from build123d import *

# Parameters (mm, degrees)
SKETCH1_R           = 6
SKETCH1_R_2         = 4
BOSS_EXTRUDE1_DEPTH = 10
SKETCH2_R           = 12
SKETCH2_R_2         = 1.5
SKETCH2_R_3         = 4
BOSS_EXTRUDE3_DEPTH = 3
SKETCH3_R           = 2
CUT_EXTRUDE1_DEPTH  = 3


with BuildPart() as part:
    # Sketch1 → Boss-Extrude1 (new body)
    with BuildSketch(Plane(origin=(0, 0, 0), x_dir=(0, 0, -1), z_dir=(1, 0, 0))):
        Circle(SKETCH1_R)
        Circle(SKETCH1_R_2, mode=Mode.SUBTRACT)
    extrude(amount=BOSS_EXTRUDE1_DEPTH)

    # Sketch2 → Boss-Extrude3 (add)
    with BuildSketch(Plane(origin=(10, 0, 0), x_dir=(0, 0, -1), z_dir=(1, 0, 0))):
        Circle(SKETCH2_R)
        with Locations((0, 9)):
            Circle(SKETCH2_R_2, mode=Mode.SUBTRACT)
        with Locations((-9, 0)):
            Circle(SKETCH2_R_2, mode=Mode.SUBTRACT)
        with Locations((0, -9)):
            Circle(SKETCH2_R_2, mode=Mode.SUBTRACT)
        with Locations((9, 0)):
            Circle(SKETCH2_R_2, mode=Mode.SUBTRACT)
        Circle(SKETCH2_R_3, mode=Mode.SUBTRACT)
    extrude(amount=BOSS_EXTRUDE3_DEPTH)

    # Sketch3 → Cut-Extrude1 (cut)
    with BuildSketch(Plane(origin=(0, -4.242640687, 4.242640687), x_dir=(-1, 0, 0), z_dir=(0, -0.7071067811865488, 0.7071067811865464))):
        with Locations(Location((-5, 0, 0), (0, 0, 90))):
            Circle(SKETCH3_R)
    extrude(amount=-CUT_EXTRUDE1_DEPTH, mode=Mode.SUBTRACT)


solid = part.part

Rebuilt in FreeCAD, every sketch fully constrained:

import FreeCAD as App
import Part
import Sketcher

V = App.Vector

doc = App.newDocument("Part")
body = doc.addObject("PartDesign::Body", "Body")

# Sketch on YZ plane
sketch1 = body.newObject("Sketcher::SketchObject", "Sketch")
sketch1.AttachmentSupport = (doc.getObject("YZ_Plane"), [""])
sketch1.MapMode = "FlatFace"
sketch1.addGeometry([
    Part.Circle(V(0, 0, 0), V(0, 0, 1), 6),
    Part.Circle(V(0, 0, 0), V(0, 0, 1), 4),
], False)
sketch1.addConstraint([
    Sketcher.Constraint("Coincident", 0, 3, -1, 1),
    Sketcher.Constraint("Coincident", 1, 3, -1, 1),
    Sketcher.Constraint("Diameter", 0, 12.0),
    Sketcher.Constraint("Diameter", 1, 8.0),
])
pad1 = body.newObject("PartDesign::Pad", "Pad")
pad1.Profile = sketch1
pad1.Length = 10

# Sketch on YZ plane
sketch2 = body.newObject("Sketcher::SketchObject", "Sketch001")
sketch2.AttachmentSupport = (doc.getObject("YZ_Plane"), [""])
sketch2.MapMode = "FlatFace"
sketch2.AttachmentOffset = App.Placement(V(0, 0, 10), App.Rotation())
sketch2.addGeometry([
    Part.Circle(V(0, 0, 0), V(0, 0, 1), 12),  # 0
    Part.Circle(V(-9, 0, 0), V(0, 0, 1), 1.5),  # 1
    Part.Circle(V(0, 9, 0), V(0, 0, 1), 1.5),  # 2
    Part.Circle(V(0, 0, 0), V(0, 0, 1), 4),  # 3
    Part.Circle(V(0, -9, 0), V(0, 0, 1), 1.5),  # 4
    Part.Circle(V(9, 0, 0), V(0, 0, 1), 1.5),  # 5
], False)
sketch2.addConstraint([
    Sketcher.Constraint("Coincident", 0, 3, -1, 1),
    Sketcher.Constraint("Coincident", 3, 3, -1, 1),
    Sketcher.Constraint("Equal", 1, 2),
    Sketcher.Constraint("Equal", 2, 4),
    Sketcher.Constraint("Equal", 4, 5),
    Sketcher.Constraint("Symmetric", 2, 3, 4, 3, -1, 1),
    Sketcher.Constraint("Symmetric", 1, 3, 5, 3, -1, 1),
    Sketcher.Constraint("PointOnObject", 1, 3, -1),
    Sketcher.Constraint("PointOnObject", 2, 3, -2),
    Sketcher.Constraint("Diameter", 0, 24.0),
    Sketcher.Constraint("Diameter", 1, 3.0),
    Sketcher.Constraint("Diameter", 3, 8.0),
    Sketcher.Constraint("DistanceX", 1, 3, -1, 1, 9.0),
    Sketcher.Constraint("DistanceY", -1, 1, 2, 3, 9.0),
])
pad2 = body.newObject("PartDesign::Pad", "Pad001")
pad2.Profile = sketch2
pad2.Length = 3

# Sketch on an angled plane
sketch3 = body.newObject("Sketcher::SketchObject", "Sketch002")
sketch3.Placement = App.Placement(V(0, -4.242641, 4.242641), App.Rotation(V(-1, 0, 0), V(0, -0.707106781, -0.707106781), V(0, -0.707106781, 0.707106781), "ZXY"))
sketch3.addGeometry(Part.Circle(V(-5, 0, 0), V(0, 0, 1), 2), False)
sketch3.addConstraint([
    Sketcher.Constraint("PointOnObject", 0, 3, -1),
    Sketcher.Constraint("Diameter", 0, 4.0),
    Sketcher.Constraint("DistanceX", 0, 3, -1, 1, 5.0),
])
pocket1 = body.newObject("PartDesign::Pocket", "Pocket")
pocket1.Profile = sketch3
pocket1.Length = 3

doc.recompute()
